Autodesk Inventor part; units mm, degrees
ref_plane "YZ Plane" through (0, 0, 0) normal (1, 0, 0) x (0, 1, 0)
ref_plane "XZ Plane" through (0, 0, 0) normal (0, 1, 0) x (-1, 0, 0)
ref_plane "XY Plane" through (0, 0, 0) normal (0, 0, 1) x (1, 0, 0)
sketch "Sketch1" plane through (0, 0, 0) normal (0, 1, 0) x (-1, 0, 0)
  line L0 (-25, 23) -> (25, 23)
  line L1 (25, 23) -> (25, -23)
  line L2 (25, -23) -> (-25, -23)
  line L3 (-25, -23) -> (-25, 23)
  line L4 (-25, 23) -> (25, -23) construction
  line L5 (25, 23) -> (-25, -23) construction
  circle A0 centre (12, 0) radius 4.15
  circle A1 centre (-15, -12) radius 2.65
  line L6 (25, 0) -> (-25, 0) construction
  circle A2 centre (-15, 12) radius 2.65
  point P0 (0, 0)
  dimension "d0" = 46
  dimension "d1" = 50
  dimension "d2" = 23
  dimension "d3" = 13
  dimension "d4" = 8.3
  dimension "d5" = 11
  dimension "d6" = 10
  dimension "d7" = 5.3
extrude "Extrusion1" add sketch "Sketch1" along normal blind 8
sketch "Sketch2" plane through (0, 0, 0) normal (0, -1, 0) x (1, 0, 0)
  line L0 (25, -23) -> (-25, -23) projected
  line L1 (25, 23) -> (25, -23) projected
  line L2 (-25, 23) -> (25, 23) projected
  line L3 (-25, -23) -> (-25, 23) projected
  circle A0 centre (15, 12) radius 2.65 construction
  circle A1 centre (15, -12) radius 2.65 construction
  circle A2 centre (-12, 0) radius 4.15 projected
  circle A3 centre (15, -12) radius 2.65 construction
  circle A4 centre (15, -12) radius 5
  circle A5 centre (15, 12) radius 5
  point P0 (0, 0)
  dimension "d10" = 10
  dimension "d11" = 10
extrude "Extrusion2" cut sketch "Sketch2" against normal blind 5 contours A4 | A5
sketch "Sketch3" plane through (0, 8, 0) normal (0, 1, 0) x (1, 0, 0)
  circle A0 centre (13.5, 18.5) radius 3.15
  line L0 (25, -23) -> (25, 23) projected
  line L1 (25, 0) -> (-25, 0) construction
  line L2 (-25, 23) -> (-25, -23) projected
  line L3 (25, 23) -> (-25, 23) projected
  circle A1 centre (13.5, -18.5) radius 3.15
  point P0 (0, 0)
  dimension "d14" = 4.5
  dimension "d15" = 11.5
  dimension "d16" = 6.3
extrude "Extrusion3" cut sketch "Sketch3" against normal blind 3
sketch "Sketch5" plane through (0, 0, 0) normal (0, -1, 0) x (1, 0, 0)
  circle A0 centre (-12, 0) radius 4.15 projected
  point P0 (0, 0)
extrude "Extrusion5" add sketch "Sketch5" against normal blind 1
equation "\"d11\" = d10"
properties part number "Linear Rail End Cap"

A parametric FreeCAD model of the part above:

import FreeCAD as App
import Part
import Sketcher

V = App.Vector
Q = App.Units.Quantity

doc = App.newDocument("Part")
body = doc.addObject("PartDesign::Body", "Body")

sketch1 = body.newObject("Sketcher::SketchObject", "Sketch")
sketch1.AttachmentSupport = (doc.getObject("XZ_Plane"), [""])
sketch1.MapMode = "FlatFace"
sketch1.addGeometry(Part.LineSegment(V(-25, 23, 0), V(25, 23, 0)), False)
sketch1.addGeometry(Part.LineSegment(V(25, 23, 0), V(25, -23, 0)), False)
sketch1.addGeometry(Part.LineSegment(V(25, -23, 0), V(-25, -23, 0)), False)
sketch1.addGeometry(Part.LineSegment(V(-25, -23, 0), V(-25, 23, 0)), False)
sketch1.addGeometry(Part.Circle(V(15, -12, 0), V(0, 0, 1), 2.6), False)
sketch1.addGeometry(Part.Circle(V(15, 12, 0), V(0, 0, 1), 2.6), False)
sketch1.addGeometry(Part.Circle(V(-12, 0, 0), V(0, 0, 1), 4.2), False)
sketch1.addConstraint(Sketcher.Constraint("Coincident", 0, 2, 1, 1))
sketch1.addConstraint(Sketcher.Constraint("Coincident", 1, 2, 2, 1))
sketch1.addConstraint(Sketcher.Constraint("Coincident", 2, 2, 3, 1))
sketch1.addConstraint(Sketcher.Constraint("Coincident", 3, 2, 0, 1))
sketch1.addConstraint(Sketcher.Constraint("Horizontal", 0))
sketch1.addConstraint(Sketcher.Constraint("Vertical", 1))
sketch1.addConstraint(Sketcher.Constraint("Horizontal", 2))
sketch1.addConstraint(Sketcher.Constraint("Vertical", 3))
sketch1.addConstraint(Sketcher.Constraint("Equal", 4, 5))
sketch1.addConstraint(Sketcher.Constraint("Symmetric", 0, 2, 2, 2, -1, 1))
sketch1.addConstraint(Sketcher.Constraint("Symmetric", 4, 3, 5, 3, -1))
sketch1.addConstraint(Sketcher.Constraint("PointOnObject", 6, 3, -1))
sketch1.addConstraint(Sketcher.Constraint("Diameter", 4, Q("5.3 mm")))
sketch1.addConstraint(Sketcher.Constraint("Diameter", 6, Q("8.3 mm")))
sketch1.addConstraint(Sketcher.Constraint("DistanceX", 0, 1, 0, 2, Q("50 mm")))
sketch1.addConstraint(Sketcher.Constraint("DistanceY", 1, 2, 1, 1, Q("46 mm")))
sketch1.addConstraint(Sketcher.Constraint("DistanceX", 5, 3, 0, 2, Q("10 mm")))
sketch1.addConstraint(Sketcher.Constraint("DistanceY", 5, 3, 0, 2, Q("11 mm")))
sketch1.addConstraint(Sketcher.Constraint("DistanceX", 2, 2, 6, 3, Q("13 mm")))
pad1 = body.newObject("PartDesign::Pad", "Pad")
pad1.Profile = sketch1
pad1.Length = 8
pad1.Reversed = True

sketch2 = body.newObject("Sketcher::SketchObject", "Sketch001")
sketch2.AttachmentSupport = (doc.getObject("XZ_Plane"), [""])
sketch2.MapMode = "FlatFace"
sketch2.addGeometry(Part.Circle(V(15, -12, 0), V(0, 0, 1), 5), False)
sketch2.addGeometry(Part.Circle(V(15, 12, 0), V(0, 0, 1), 5), False)
sketch2.addConstraint(Sketcher.Constraint("Equal", 0, 1))
sketch2.addConstraint(Sketcher.Constraint("Symmetric", 0, 3, 1, 3, -1))
sketch2.addConstraint(Sketcher.Constraint("Diameter", 0, Q("10 mm")))
sketch2.addConstraint(Sketcher.Constraint("DistanceX", -1, 1, 0, 3, Q("15 mm")))
sketch2.addConstraint(Sketcher.Constraint("DistanceY", 0, 3, -1, 1, Q("12 mm")))
pocket1 = body.newObject("PartDesign::Pocket", "Pocket")
pocket1.Profile = sketch2
pocket1.Length = 5

sketch3 = body.newObject("Sketcher::SketchObject", "Sketch002")
sketch3.AttachmentSupport = (doc.getObject("XZ_Plane"), [""])
sketch3.MapMode = "FlatFace"
sketch3.AttachmentOffset = App.Placement(V(0, 0, -8), App.Rotation())
sketch3.addGeometry(Part.Circle(V(13.5, -18.5, 0), V(0, 0, 1), 3.1), False)
sketch3.addGeometry(Part.Circle(V(13.5, 18.5, 0), V(0, 0, 1), 3.1), False)
sketch3.addConstraint(Sketcher.Constraint("Equal", 0, 1))
sketch3.addConstraint(Sketcher.Constraint("Symmetric", 0, 3, 1, 3, -1))
sketch3.addConstraint(Sketcher.Constraint("Diameter", 0, Q("6.3 mm")))
sketch3.addConstraint(Sketcher.Constraint("DistanceY", 0, 3, 1, 3, Q("37 mm")))
sketch3.addConstraint(Sketcher.Constraint("DistanceX", -1, 1, 0, 3, Q("13.5 mm")))
pocket2 = body.newObject("PartDesign::Pocket", "Pocket001")
pocket2.Profile = sketch3
pocket2.Length = 3
pocket2.Reversed = True

sketch4 = body.newObject("Sketcher::SketchObject", "Sketch003")
sketch4.AttachmentSupport = (doc.getObject("XZ_Plane"), [""])
sketch4.MapMode = "FlatFace"
sketch4.addGeometry(Part.Circle(V(-12, 0, 0), V(0, 0, 1), 4.2), False)
sketch4.addConstraint(Sketcher.Constraint("PointOnObject", 0, 3, -1))
sketch4.addConstraint(Sketcher.Constraint("Diameter", 0, Q("8.3 mm")))
sketch4.addConstraint(Sketcher.Constraint("DistanceX", 0, 3, -1, 1, Q("12 mm")))
pad2 = body.newObject("PartDesign::Pad", "Pad001")
pad2.Profile = sketch4
pad2.Length = 1
pad2.Reversed = True

doc.recompute()
